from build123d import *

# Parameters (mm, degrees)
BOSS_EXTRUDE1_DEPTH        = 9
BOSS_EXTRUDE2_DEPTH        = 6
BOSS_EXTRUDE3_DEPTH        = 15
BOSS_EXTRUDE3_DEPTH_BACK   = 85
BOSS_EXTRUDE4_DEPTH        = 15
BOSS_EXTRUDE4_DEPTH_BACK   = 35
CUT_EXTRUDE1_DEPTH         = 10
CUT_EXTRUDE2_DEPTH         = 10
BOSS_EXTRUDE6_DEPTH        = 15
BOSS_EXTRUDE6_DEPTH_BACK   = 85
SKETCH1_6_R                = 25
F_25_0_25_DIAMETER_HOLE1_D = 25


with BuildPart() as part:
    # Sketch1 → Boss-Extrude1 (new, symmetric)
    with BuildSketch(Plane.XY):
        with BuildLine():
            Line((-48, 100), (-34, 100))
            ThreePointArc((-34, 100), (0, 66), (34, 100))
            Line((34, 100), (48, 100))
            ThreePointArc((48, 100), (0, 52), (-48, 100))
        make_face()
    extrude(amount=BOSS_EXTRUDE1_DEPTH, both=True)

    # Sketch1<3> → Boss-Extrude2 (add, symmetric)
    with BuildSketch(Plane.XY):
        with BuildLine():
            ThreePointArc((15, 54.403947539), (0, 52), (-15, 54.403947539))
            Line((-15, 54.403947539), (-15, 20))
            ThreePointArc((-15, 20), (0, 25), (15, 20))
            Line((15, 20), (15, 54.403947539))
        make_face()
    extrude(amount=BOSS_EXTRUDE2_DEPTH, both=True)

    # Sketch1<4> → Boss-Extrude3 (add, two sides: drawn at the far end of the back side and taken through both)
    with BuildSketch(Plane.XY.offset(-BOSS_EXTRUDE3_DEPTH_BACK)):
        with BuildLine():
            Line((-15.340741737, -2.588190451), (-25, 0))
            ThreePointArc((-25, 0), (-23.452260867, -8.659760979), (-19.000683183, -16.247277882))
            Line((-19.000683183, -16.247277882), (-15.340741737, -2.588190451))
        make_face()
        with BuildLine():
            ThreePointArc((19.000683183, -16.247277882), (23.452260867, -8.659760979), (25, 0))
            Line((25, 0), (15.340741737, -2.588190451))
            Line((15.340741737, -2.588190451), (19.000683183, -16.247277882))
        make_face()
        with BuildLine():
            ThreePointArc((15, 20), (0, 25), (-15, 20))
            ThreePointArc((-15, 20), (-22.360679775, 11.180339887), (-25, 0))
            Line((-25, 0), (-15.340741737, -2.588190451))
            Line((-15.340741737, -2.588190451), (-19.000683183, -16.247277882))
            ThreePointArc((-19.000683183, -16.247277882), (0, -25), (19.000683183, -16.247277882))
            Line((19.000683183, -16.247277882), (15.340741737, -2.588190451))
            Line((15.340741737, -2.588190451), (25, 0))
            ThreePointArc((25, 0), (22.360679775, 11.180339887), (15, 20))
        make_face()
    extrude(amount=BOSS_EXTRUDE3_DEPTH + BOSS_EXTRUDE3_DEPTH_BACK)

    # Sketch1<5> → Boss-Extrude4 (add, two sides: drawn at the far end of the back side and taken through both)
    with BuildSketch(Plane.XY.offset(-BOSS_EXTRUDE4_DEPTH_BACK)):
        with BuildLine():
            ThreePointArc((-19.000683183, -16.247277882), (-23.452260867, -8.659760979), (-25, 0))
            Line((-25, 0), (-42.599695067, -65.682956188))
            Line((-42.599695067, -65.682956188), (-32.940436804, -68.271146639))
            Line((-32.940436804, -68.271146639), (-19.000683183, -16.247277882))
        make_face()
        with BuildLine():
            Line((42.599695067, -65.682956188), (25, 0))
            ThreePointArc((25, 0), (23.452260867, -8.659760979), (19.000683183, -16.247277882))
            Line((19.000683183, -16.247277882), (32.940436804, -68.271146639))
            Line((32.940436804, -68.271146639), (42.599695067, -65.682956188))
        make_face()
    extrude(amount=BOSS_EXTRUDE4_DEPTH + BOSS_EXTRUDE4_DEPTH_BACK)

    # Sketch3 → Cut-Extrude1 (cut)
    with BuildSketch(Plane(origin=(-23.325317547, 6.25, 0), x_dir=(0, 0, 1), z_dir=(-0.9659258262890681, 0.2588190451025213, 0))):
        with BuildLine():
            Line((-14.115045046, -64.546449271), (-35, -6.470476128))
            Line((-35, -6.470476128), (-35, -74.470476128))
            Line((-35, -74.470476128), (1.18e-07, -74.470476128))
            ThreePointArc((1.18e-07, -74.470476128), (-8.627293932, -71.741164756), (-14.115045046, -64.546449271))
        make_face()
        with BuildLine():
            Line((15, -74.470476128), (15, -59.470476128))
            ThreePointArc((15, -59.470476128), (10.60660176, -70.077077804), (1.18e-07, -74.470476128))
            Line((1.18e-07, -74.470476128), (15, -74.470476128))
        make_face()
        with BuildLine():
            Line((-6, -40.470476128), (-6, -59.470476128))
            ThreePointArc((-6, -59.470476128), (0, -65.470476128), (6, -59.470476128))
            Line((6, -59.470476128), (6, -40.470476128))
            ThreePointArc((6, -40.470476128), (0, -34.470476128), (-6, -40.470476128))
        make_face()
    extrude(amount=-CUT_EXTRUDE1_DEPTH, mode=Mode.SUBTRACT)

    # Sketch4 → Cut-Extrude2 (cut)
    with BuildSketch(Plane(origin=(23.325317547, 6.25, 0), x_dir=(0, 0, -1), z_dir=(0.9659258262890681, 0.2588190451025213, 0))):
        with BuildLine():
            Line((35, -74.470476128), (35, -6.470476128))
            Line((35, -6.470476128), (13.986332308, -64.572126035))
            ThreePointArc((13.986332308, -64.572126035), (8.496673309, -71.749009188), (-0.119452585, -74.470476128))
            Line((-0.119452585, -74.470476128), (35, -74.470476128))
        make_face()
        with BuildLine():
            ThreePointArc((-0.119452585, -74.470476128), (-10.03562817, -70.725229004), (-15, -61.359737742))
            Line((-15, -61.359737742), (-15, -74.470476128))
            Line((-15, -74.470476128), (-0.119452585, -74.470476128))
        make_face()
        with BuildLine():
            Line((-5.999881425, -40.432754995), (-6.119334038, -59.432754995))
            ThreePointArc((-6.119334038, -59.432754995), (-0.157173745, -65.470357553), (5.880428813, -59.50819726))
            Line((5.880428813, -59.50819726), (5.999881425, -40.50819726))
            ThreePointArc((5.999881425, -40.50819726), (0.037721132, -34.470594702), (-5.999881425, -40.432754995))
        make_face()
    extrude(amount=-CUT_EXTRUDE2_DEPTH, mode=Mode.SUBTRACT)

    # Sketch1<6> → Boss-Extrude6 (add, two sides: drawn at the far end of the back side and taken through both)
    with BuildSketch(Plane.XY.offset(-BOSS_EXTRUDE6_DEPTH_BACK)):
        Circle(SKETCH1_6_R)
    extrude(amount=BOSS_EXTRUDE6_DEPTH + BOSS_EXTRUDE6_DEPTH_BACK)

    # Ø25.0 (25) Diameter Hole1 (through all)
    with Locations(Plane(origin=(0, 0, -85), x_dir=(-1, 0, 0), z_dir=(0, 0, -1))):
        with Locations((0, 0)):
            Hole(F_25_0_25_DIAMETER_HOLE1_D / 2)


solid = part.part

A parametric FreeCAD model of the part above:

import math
import FreeCAD as App
import Part
import Sketcher
from FreeCAD import Vector
Q = App.Units.Quantity

doc = App.newDocument("Part")
body = doc.addObject("PartDesign::Body", "Body")

# Sketch on XY plane
sketch1 = body.newObject("Sketcher::SketchObject", "Sketch")
sketch1.AttachmentSupport = (doc.getObject("XY_Plane"), [""])
sketch1.MapMode = "FlatFace"
sketch1.addGeometry([
    Part.LineSegment(Vector(-34, 100, 0), Vector(-48, 100, 0)),
    Part.ArcOfCircle(Part.Circle(Vector(0, 100, 0), Vector(0, 0, 1), 48), math.radians(180), math.radians(360)),
    Part.LineSegment(Vector(48, 100, 0), Vector(34, 100, 0)),
    Part.ArcOfCircle(Part.Circle(Vector(0, 100, 0), Vector(0, 0, 1), 34), math.radians(180), math.radians(360)),
], False)
sketch1.addConstraint([
    Sketcher.Constraint("Coincident", 0, 2, 1, 1),
    Sketcher.Constraint("Coincident", 1, 2, 2, 1),
    Sketcher.Constraint("Coincident", 2, 2, 3, 2),
    Sketcher.Constraint("Coincident", 3, 1, 0, 1),
    Sketcher.Constraint("Horizontal", 0),
    Sketcher.Constraint("Horizontal", 2),
    Sketcher.Constraint("Coincident", 3, 3, 1, 3),
    Sketcher.Constraint("Symmetric", 0, 2, 1, 2, -2),
    Sketcher.Constraint("Horizontal", 3, 3, 0, 2),
    Sketcher.Constraint("Radius", 1, 48.0),
    Sketcher.Constraint("Radius", 3, 34.0),
    Sketcher.Constraint("DistanceY", -1, 1, 1, 3, 100.0),
])
pad1 = body.newObject("PartDesign::Pad", "Pad")
pad1.Profile = sketch1
pad1.Length = 18
pad1.Midplane = True

# Sketch on XY plane
sketch2 = body.newObject("Sketcher::SketchObject", "Sketch001")
sketch2.AttachmentSupport = (doc.getObject("XY_Plane"), [""])
sketch2.MapMode = "FlatFace"
sketch2.addGeometry([
    Part.ArcOfCircle(Part.Circle(Vector(0, 100, 0), Vector(0, 0, 1), 48), math.radians(-108), math.radians(-72)),
    Part.LineSegment(Vector(-15, 54, 0), Vector(-15, 20, 0)),
    Part.ArcOfCircle(Part.Circle(Vector(0, 0, 0), Vector(0, 0, 1), 25), math.radians(53), math.radians(127)),
    Part.LineSegment(Vector(15, 20, 0), Vector(15, 54, 0)),
], False)
sketch2.addConstraint([
    Sketcher.Constraint("Coincident", 0, 1, 1, 1),
    Sketcher.Constraint("Coincident", 1, 2, 2, 2),
    Sketcher.Constraint("Coincident", 2, 1, 3, 1),
    Sketcher.Constraint("Coincident", 3, 2, 0, 2),
    Sketcher.Constraint("Vertical", 1),
    Sketcher.Constraint("Vertical", 3),
    Sketcher.Constraint("Coincident", 2, 3, -1, 1),
    Sketcher.Constraint("Symmetric", 0, 1, 3, 2, -2),
    Sketcher.Constraint("Radius", 0, 48.0),
    Sketcher.Constraint("Radius", 2, 25.0),
    Sketcher.Constraint("DistanceY", -1, 1, 0, 3, 100.0),
    Sketcher.Constraint("DistanceX", 0, 1, -1, 1, 15.0),
])
pad2 = body.newObject("PartDesign::Pad", "Pad001")
pad2.Profile = sketch2
pad2.Length = 12
pad2.Midplane = True

# Sketch on XY plane
sketch3 = body.newObject("Sketcher::SketchObject", "Sketch002")
sketch3.AttachmentSupport = (doc.getObject("XY_Plane"), [""])
sketch3.MapMode = "FlatFace"
sketch3.addGeometry([
    Part.ArcOfCircle(Part.Circle(Vector(0, 0, 0), Vector(0, 0, 1), 25), math.radians(-180), math.radians(-139)),  # 0
    Part.ArcOfCircle(Part.Circle(Vector(0, 0, 0), Vector(0, 0, 1), 25), math.radians(-139), math.radians(-41)),  # 1
    Part.ArcOfCircle(Part.Circle(Vector(0, 0, 0), Vector(0, 0, 1), 25), math.radians(-41), math.radians(0)),  # 2
    Part.ArcOfCircle(Part.Circle(Vector(0, 0, 0), Vector(0, 0, 1), 25), math.radians(0), math.radians(53)),  # 3
    Part.ArcOfCircle(Part.Circle(Vector(0, 0, 0), Vector(0, 0, 1), 25), math.radians(53), math.radians(127)),  # 4
    Part.ArcOfCircle(Part.Circle(Vector(0, 0, 0), Vector(0, 0, 1), 25), math.radians(127), math.radians(180)),  # 5
], False)
sketch3.addConstraint([
    Sketcher.Constraint("Tangent", 0, 2, 1, 1),
    Sketcher.Constraint("Tangent", 1, 2, 2, 1),
    Sketcher.Constraint("Tangent", 2, 2, 3, 1),
    Sketcher.Constraint("Tangent", 3, 2, 4, 1),
    Sketcher.Constraint("Tangent", 4, 2, 5, 1),
    Sketcher.Constraint("Tangent", 5, 2, 0, 1),
    Sketcher.Constraint("Coincident", 0, 3, -1, 1),
    Sketcher.Constraint("Coincident", 2, 3, -1, 1),
    Sketcher.Constraint("Equal", 2, 3),
    Sketcher.Constraint("PointOnObject", 2, 2, -1),
    Sketcher.Constraint("PointOnObject", 5, 2, -1),
    Sketcher.Constraint("Horizontal", 0, 2, 1, 2),
    Sketcher.Constraint("Horizontal", 3, 2, 4, 2),
    Sketcher.Constraint("Radius", 0, 25.0),
    Sketcher.Constraint("DistanceX", -1, 1, 3, 2, 15.0),
    Sketcher.Constraint("DistanceX", 0, 2, -1, 1, 19.000683),
])
pad3 = body.newObject("PartDesign::Pad", "Pad002")
pad3.Profile = sketch3
pad3.Type = "TwoLengths"
pad3.Length = 15
pad3.Length2 = 85

# Sketch on XY plane
sketch4 = body.newObject("Sketcher::SketchObject", "Sketch003")
sketch4.AttachmentSupport = (doc.getObject("XY_Plane"), [""])
sketch4.MapMode = "FlatFace"
sketch4.addGeometry([
    Part.ArcOfCircle(Part.Circle(Vector(0, 0, 0), Vector(0, 0, 1), 25), math.radians(-180), math.radians(-139)),  # 0
    Part.LineSegment(Vector(-25, 0, 0), Vector(-43, -66, 0)),  # 1
    Part.LineSegment(Vector(-43, -66, 0), Vector(-33, -68, 0)),  # 2
    Part.LineSegment(Vector(-33, -68, 0), Vector(-19, -16, 0)),  # 3
    Part.LineSegment(Vector(43, -66, 0), Vector(25, 0, 0)),  # 4
    Part.ArcOfCircle(Part.Circle(Vector(0, 0, 0), Vector(0, 0, 1), 25), math.radians(-41), math.radians(0)),  # 5
    Part.LineSegment(Vector(19, -16, 0), Vector(33, -68, 0)),  # 6
    Part.LineSegment(Vector(33, -68, 0), Vector(43, -66, 0)),  # 7
], False)
sketch4.addConstraint([
    Sketcher.Constraint("Coincident", 0, 1, 1, 1),
    Sketcher.Constraint("Coincident", 1, 2, 2, 1),
    Sketcher.Constraint("Coincident", 2, 2, 3, 1),
    Sketcher.Constraint("Coincident", 3, 2, 0, 2),
    Sketcher.Constraint("Coincident", 4, 2, 5, 2),
    Sketcher.Constraint("Coincident", 5, 1, 6, 1),
    Sketcher.Constraint("Coincident", 6, 2, 7, 1),
    Sketcher.Constraint("Coincident", 7, 2, 4, 1),
    Sketcher.Constraint("Coincident", 0, 3, -1, 1),
    Sketcher.Constraint("Coincident", 5, 3, -1, 1),
    Sketcher.Constraint("Equal", 0, 5),
    Sketcher.Constraint("Symmetric", 2, 2, 6, 2, -2),
    Sketcher.Constraint("Symmetric", 1, 2, 7, 2, -2),
    Sketcher.Constraint("PointOnObject", 0, 1, -1),
    Sketcher.Constraint("PointOnObject", 4, 2, -1),
    Sketcher.Constraint("Perpendicular", 1, 2),
    Sketcher.Constraint("Perpendicular", 2, 3),
    Sketcher.Constraint("Parallel", 4, 6),
    Sketcher.Constraint("Radius", 0, 25.0),
    Sketcher.Constraint("Angle", 1, Q("-105 deg")),
    Sketcher.Constraint("Distance", 1, 68.0),
    Sketcher.Constraint("Distance", 2, 10.0),
])
pad4 = body.newObject("PartDesign::Pad", "Pad003")
pad4.Profile = sketch4
pad4.Type = "TwoLengths"
pad4.Length = 15
pad4.Length2 = 35

# Sketch on an angled plane
sketch5 = body.newObject("Sketcher::SketchObject", "Sketch004")
sketch5.Placement = App.Placement(Vector(-23.325318, 6.25, 0), App.Rotation(Vector(0, 0, 1), Vector(0.258819045, 0.965925826, 0), Vector(-0.965925826, 0.258819045, 0), "ZXY"))
sketch5.addGeometry([
    Part.LineSegment(Vector(-14, -65, 0), Vector(-35, -6, 0)),  # 0
    Part.LineSegment(Vector(-35, -6, 0), Vector(-35, -74, 0)),  # 1
    Part.LineSegment(Vector(-35, -74, 0), Vector(0, -74, 0)),  # 2
    Part.ArcOfCircle(Part.Circle(Vector(0, -59, 0), Vector(0, 0, 1), 15), math.radians(-160), math.radians(-90)),  # 3
    Part.LineSegment(Vector(15, -74, 0), Vector(15, -59, 0)),  # 4
    Part.ArcOfCircle(Part.Circle(Vector(0, -59, 0), Vector(0, 0, 1), 15), math.radians(-90), math.radians(0)),  # 5
    Part.LineSegment(Vector(0, -74, 0), Vector(15, -74, 0)),  # 6
    Part.LineSegment(Vector(-6, -40, 0), Vector(-6, -59, 0)),  # 7
    Part.ArcOfCircle(Part.Circle(Vector(0, -59, 0), Vector(0, 0, 1), 6), math.radians(180), math.radians(360)),  # 8
    Part.LineSegment(Vector(6, -59, 0), Vector(6, -40, 0)),  # 9
    Part.ArcOfCircle(Part.Circle(Vector(0, -40, 0), Vector(0, 0, 1), 6), math.radians(0), math.radians(180)),  # 10
], False)
sketch5.addConstraint([
    Sketcher.Constraint("Coincident", 0, 2, 1, 1),
    Sketcher.Constraint("Coincident", 1, 2, 2, 1),
    Sketcher.Constraint("Tangent", 2, 2, 3, 2),
    Sketcher.Constraint("Tangent", 3, 1, 0, 1),
    Sketcher.Constraint("Tangent", 4, 2, 5, 2),
    Sketcher.Constraint("Tangent", 5, 1, 6, 1),
    Sketcher.Constraint("Coincident", 6, 2, 4, 1),
    Sketcher.Constraint("Tangent", 7, 2, 8, 1),
    Sketcher.Constraint("Tangent", 8, 2, 9, 1),
    Sketcher.Constraint("Tangent", 9, 2, 10, 1),
    Sketcher.Constraint("Tangent", 10, 2, 7, 1),
    Sketcher.Constraint("Vertical", 1),
    Sketcher.Constraint("Horizontal", 2),
    Sketcher.Constraint("Vertical", 4),
    Sketcher.Constraint("Horizontal", 6),
    Sketcher.Constraint("Vertical", 7),
    Sketcher.Constraint("Vertical", 9),
    Sketcher.Constraint("Coincident", 5, 3, 3, 3),
    Sketcher.Constraint("Coincident", 8, 3, 3, 3),
    Sketcher.Constraint("Equal", 3, 5),
    Sketcher.Constraint("PointOnObject", 3, 3, -2),
    Sketcher.Constraint("Radius", 3, 15.0),
    Sketcher.Constraint("Radius", 8, 6.0),
    Sketcher.Constraint("DistanceX", 2, 1, 2, 2, 35.0),
    Sketcher.Constraint("DistanceY", 1, 2, 1, 1, 68.0),
    Sketcher.Constraint("DistanceY", 7, 2, 7, 1, 19.0),
    Sketcher.Constraint("DistanceY", 3, 1, -1, 1, 64.546449),
])
pocket1 = body.newObject("PartDesign::Pocket", "Pocket")
pocket1.Profile = sketch5
pocket1.Length = 10

# Sketch on an angled plane
sketch6 = body.newObject("Sketcher::SketchObject", "Sketch005")
sketch6.Placement = App.Placement(Vector(23.325318, 6.25, 0), App.Rotation(Vector(0, 0, -1), Vector(-0.258819045, 0.965925826, 0), Vector(0.965925826, 0.258819045, 0), "ZXY"))
sketch6.addGeometry([
    Part.LineSegment(Vector(35, -74, 0), Vector(35, -6, 0)),  # 0
    Part.LineSegment(Vector(35, -6, 0), Vector(14, -65, 0)),  # 1
    Part.ArcOfCircle(Part.Circle(Vector(0, -59, 0), Vector(0, 0, 1), 15), math.radians(-90), math.radians(-20)),  # 2
    Part.LineSegment(Vector(0, -74, 0), Vector(35, -74, 0)),  # 3
    Part.ArcOfCircle(Part.Circle(Vector(0, -59, 0), Vector(0, 0, 1), 15), math.radians(-173), math.radians(-90)),  # 4
    Part.LineSegment(Vector(-15, -61, 0), Vector(-15, -74, 0)),  # 5
    Part.LineSegment(Vector(-15, -74, 0), Vector(0, -74, 0)),  # 6
    Part.LineSegment(Vector(-6, -40, 0), Vector(-6, -59, 0)),  # 7
    Part.ArcOfCircle(Part.Circle(Vector(0, -59, 0), Vector(0, 0, 1), 6), math.radians(180), math.radians(360)),  # 8
    Part.LineSegment(Vector(6, -60, 0), Vector(6, -41, 0)),  # 9
    Part.ArcOfCircle(Part.Circle(Vector(0, -40, 0), Vector(0, 0, 1), 6), math.radians(0), math.radians(180)),  # 10
], False)
sketch6.addConstraint([
    Sketcher.Constraint("Coincident", 0, 2, 1, 1),
    Sketcher.Constraint("Tangent", 1, 2, 2, 2),
    Sketcher.Constraint("Tangent", 2, 1, 3, 1),
    Sketcher.Constraint("Coincident", 3, 2, 0, 1),
    Sketcher.Constraint("Coincident", 4, 1, 5, 1),
    Sketcher.Constraint("Coincident", 5, 2, 6, 1),
    Sketcher.Constraint("Tangent", 6, 2, 4, 2),
    Sketcher.Constraint("Tangent", 7, 2, 8, 1),
    Sketcher.Constraint("Tangent", 8, 2, 9, 1),
    Sketcher.Constraint("Tangent", 9, 2, 10, 1),
    Sketcher.Constraint("Tangent", 10, 2, 7, 1),
    Sketcher.Constraint("Vertical", 0),
    Sketcher.Constraint("Horizontal", 3),
    Sketcher.Constraint("Vertical", 5),
    Sketcher.Constraint("Horizontal", 6),
    Sketcher.Constraint("Coincident", 4, 3, 2, 3),
    Sketcher.Constraint("Coincident", 8, 3, 2, 3),
    Sketcher.Constraint("Equal", 2, 4),
    Sketcher.Constraint("Equal", 8, 10),
    Sketcher.Constraint("PointOnObject", 10, 3, -2),
    Sketcher.Constraint("Radius", 2, 15.0),
    Sketcher.Constraint("Radius", 8, 6.0),
    Sketcher.Constraint("DistanceY", 0, 1, 0, 2, 68.0),
    Sketcher.Constraint("DistanceX", -1, 1, 0, 2, 35.0),
    Sketcher.Constraint("DistanceX", 4, 1, -1, 1, 15.0),
    Sketcher.Constraint("DistanceY", 4, 3, 10, 3, 19.0),
    Sketcher.Constraint("DistanceY", 5, 2, 5, 1, 13.110738),
    Sketcher.Constraint("DistanceY", 2, 3, -1, 1, 59.470476),
])
pocket2 = body.newObject("PartDesign::Pocket", "Pocket001")
pocket2.Profile = sketch6
pocket2.Length = 10

# Sketch on XY plane
sketch7 = body.newObject("Sketcher::SketchObject", "Sketch006")
sketch7.AttachmentSupport = (doc.getObject("XY_Plane"), [""])
sketch7.MapMode = "FlatFace"
sketch7.addGeometry(Part.Circle(Vector(0, 0, 0), Vector(0, 0, 1), 25), False)
sketch7.addConstraint([
    Sketcher.Constraint("Coincident", 0, 3, -1, 1),
    Sketcher.Constraint("Diameter", 0, 50.0),
])
pad5 = body.newObject("PartDesign::Pad", "Pad004")
pad5.Profile = sketch7
pad5.Type = "TwoLengths"
pad5.Length = 15
pad5.Length2 = 85

# Sketch on XY plane
sketch8 = body.newObject("Sketcher::SketchObject", "Sketch007")
sketch8.AttachmentSupport = (doc.getObject("XY_Plane"), [""])
sketch8.MapMode = "FlatFace"
sketch8.AttachmentOffset = App.Placement(Vector(0, 0, -85), App.Rotation())
sketch8.addGeometry(Part.Circle(Vector(0, 0, 0), Vector(0, 0, 1), 12), False)
sketch8.addConstraint([
    Sketcher.Constraint("Coincident", 0, 3, -1, 1),
    Sketcher.Constraint("Diameter", 0, 25.0),
])
doc.recompute()
hole = body.newObject("PartDesign::Hole", "Hole")
hole.Profile = sketch8
hole.ThreadType = "None"
hole.Diameter = 25
hole.DepthType = "ThroughAll"
hole.Reversed = True

doc.recompute()
